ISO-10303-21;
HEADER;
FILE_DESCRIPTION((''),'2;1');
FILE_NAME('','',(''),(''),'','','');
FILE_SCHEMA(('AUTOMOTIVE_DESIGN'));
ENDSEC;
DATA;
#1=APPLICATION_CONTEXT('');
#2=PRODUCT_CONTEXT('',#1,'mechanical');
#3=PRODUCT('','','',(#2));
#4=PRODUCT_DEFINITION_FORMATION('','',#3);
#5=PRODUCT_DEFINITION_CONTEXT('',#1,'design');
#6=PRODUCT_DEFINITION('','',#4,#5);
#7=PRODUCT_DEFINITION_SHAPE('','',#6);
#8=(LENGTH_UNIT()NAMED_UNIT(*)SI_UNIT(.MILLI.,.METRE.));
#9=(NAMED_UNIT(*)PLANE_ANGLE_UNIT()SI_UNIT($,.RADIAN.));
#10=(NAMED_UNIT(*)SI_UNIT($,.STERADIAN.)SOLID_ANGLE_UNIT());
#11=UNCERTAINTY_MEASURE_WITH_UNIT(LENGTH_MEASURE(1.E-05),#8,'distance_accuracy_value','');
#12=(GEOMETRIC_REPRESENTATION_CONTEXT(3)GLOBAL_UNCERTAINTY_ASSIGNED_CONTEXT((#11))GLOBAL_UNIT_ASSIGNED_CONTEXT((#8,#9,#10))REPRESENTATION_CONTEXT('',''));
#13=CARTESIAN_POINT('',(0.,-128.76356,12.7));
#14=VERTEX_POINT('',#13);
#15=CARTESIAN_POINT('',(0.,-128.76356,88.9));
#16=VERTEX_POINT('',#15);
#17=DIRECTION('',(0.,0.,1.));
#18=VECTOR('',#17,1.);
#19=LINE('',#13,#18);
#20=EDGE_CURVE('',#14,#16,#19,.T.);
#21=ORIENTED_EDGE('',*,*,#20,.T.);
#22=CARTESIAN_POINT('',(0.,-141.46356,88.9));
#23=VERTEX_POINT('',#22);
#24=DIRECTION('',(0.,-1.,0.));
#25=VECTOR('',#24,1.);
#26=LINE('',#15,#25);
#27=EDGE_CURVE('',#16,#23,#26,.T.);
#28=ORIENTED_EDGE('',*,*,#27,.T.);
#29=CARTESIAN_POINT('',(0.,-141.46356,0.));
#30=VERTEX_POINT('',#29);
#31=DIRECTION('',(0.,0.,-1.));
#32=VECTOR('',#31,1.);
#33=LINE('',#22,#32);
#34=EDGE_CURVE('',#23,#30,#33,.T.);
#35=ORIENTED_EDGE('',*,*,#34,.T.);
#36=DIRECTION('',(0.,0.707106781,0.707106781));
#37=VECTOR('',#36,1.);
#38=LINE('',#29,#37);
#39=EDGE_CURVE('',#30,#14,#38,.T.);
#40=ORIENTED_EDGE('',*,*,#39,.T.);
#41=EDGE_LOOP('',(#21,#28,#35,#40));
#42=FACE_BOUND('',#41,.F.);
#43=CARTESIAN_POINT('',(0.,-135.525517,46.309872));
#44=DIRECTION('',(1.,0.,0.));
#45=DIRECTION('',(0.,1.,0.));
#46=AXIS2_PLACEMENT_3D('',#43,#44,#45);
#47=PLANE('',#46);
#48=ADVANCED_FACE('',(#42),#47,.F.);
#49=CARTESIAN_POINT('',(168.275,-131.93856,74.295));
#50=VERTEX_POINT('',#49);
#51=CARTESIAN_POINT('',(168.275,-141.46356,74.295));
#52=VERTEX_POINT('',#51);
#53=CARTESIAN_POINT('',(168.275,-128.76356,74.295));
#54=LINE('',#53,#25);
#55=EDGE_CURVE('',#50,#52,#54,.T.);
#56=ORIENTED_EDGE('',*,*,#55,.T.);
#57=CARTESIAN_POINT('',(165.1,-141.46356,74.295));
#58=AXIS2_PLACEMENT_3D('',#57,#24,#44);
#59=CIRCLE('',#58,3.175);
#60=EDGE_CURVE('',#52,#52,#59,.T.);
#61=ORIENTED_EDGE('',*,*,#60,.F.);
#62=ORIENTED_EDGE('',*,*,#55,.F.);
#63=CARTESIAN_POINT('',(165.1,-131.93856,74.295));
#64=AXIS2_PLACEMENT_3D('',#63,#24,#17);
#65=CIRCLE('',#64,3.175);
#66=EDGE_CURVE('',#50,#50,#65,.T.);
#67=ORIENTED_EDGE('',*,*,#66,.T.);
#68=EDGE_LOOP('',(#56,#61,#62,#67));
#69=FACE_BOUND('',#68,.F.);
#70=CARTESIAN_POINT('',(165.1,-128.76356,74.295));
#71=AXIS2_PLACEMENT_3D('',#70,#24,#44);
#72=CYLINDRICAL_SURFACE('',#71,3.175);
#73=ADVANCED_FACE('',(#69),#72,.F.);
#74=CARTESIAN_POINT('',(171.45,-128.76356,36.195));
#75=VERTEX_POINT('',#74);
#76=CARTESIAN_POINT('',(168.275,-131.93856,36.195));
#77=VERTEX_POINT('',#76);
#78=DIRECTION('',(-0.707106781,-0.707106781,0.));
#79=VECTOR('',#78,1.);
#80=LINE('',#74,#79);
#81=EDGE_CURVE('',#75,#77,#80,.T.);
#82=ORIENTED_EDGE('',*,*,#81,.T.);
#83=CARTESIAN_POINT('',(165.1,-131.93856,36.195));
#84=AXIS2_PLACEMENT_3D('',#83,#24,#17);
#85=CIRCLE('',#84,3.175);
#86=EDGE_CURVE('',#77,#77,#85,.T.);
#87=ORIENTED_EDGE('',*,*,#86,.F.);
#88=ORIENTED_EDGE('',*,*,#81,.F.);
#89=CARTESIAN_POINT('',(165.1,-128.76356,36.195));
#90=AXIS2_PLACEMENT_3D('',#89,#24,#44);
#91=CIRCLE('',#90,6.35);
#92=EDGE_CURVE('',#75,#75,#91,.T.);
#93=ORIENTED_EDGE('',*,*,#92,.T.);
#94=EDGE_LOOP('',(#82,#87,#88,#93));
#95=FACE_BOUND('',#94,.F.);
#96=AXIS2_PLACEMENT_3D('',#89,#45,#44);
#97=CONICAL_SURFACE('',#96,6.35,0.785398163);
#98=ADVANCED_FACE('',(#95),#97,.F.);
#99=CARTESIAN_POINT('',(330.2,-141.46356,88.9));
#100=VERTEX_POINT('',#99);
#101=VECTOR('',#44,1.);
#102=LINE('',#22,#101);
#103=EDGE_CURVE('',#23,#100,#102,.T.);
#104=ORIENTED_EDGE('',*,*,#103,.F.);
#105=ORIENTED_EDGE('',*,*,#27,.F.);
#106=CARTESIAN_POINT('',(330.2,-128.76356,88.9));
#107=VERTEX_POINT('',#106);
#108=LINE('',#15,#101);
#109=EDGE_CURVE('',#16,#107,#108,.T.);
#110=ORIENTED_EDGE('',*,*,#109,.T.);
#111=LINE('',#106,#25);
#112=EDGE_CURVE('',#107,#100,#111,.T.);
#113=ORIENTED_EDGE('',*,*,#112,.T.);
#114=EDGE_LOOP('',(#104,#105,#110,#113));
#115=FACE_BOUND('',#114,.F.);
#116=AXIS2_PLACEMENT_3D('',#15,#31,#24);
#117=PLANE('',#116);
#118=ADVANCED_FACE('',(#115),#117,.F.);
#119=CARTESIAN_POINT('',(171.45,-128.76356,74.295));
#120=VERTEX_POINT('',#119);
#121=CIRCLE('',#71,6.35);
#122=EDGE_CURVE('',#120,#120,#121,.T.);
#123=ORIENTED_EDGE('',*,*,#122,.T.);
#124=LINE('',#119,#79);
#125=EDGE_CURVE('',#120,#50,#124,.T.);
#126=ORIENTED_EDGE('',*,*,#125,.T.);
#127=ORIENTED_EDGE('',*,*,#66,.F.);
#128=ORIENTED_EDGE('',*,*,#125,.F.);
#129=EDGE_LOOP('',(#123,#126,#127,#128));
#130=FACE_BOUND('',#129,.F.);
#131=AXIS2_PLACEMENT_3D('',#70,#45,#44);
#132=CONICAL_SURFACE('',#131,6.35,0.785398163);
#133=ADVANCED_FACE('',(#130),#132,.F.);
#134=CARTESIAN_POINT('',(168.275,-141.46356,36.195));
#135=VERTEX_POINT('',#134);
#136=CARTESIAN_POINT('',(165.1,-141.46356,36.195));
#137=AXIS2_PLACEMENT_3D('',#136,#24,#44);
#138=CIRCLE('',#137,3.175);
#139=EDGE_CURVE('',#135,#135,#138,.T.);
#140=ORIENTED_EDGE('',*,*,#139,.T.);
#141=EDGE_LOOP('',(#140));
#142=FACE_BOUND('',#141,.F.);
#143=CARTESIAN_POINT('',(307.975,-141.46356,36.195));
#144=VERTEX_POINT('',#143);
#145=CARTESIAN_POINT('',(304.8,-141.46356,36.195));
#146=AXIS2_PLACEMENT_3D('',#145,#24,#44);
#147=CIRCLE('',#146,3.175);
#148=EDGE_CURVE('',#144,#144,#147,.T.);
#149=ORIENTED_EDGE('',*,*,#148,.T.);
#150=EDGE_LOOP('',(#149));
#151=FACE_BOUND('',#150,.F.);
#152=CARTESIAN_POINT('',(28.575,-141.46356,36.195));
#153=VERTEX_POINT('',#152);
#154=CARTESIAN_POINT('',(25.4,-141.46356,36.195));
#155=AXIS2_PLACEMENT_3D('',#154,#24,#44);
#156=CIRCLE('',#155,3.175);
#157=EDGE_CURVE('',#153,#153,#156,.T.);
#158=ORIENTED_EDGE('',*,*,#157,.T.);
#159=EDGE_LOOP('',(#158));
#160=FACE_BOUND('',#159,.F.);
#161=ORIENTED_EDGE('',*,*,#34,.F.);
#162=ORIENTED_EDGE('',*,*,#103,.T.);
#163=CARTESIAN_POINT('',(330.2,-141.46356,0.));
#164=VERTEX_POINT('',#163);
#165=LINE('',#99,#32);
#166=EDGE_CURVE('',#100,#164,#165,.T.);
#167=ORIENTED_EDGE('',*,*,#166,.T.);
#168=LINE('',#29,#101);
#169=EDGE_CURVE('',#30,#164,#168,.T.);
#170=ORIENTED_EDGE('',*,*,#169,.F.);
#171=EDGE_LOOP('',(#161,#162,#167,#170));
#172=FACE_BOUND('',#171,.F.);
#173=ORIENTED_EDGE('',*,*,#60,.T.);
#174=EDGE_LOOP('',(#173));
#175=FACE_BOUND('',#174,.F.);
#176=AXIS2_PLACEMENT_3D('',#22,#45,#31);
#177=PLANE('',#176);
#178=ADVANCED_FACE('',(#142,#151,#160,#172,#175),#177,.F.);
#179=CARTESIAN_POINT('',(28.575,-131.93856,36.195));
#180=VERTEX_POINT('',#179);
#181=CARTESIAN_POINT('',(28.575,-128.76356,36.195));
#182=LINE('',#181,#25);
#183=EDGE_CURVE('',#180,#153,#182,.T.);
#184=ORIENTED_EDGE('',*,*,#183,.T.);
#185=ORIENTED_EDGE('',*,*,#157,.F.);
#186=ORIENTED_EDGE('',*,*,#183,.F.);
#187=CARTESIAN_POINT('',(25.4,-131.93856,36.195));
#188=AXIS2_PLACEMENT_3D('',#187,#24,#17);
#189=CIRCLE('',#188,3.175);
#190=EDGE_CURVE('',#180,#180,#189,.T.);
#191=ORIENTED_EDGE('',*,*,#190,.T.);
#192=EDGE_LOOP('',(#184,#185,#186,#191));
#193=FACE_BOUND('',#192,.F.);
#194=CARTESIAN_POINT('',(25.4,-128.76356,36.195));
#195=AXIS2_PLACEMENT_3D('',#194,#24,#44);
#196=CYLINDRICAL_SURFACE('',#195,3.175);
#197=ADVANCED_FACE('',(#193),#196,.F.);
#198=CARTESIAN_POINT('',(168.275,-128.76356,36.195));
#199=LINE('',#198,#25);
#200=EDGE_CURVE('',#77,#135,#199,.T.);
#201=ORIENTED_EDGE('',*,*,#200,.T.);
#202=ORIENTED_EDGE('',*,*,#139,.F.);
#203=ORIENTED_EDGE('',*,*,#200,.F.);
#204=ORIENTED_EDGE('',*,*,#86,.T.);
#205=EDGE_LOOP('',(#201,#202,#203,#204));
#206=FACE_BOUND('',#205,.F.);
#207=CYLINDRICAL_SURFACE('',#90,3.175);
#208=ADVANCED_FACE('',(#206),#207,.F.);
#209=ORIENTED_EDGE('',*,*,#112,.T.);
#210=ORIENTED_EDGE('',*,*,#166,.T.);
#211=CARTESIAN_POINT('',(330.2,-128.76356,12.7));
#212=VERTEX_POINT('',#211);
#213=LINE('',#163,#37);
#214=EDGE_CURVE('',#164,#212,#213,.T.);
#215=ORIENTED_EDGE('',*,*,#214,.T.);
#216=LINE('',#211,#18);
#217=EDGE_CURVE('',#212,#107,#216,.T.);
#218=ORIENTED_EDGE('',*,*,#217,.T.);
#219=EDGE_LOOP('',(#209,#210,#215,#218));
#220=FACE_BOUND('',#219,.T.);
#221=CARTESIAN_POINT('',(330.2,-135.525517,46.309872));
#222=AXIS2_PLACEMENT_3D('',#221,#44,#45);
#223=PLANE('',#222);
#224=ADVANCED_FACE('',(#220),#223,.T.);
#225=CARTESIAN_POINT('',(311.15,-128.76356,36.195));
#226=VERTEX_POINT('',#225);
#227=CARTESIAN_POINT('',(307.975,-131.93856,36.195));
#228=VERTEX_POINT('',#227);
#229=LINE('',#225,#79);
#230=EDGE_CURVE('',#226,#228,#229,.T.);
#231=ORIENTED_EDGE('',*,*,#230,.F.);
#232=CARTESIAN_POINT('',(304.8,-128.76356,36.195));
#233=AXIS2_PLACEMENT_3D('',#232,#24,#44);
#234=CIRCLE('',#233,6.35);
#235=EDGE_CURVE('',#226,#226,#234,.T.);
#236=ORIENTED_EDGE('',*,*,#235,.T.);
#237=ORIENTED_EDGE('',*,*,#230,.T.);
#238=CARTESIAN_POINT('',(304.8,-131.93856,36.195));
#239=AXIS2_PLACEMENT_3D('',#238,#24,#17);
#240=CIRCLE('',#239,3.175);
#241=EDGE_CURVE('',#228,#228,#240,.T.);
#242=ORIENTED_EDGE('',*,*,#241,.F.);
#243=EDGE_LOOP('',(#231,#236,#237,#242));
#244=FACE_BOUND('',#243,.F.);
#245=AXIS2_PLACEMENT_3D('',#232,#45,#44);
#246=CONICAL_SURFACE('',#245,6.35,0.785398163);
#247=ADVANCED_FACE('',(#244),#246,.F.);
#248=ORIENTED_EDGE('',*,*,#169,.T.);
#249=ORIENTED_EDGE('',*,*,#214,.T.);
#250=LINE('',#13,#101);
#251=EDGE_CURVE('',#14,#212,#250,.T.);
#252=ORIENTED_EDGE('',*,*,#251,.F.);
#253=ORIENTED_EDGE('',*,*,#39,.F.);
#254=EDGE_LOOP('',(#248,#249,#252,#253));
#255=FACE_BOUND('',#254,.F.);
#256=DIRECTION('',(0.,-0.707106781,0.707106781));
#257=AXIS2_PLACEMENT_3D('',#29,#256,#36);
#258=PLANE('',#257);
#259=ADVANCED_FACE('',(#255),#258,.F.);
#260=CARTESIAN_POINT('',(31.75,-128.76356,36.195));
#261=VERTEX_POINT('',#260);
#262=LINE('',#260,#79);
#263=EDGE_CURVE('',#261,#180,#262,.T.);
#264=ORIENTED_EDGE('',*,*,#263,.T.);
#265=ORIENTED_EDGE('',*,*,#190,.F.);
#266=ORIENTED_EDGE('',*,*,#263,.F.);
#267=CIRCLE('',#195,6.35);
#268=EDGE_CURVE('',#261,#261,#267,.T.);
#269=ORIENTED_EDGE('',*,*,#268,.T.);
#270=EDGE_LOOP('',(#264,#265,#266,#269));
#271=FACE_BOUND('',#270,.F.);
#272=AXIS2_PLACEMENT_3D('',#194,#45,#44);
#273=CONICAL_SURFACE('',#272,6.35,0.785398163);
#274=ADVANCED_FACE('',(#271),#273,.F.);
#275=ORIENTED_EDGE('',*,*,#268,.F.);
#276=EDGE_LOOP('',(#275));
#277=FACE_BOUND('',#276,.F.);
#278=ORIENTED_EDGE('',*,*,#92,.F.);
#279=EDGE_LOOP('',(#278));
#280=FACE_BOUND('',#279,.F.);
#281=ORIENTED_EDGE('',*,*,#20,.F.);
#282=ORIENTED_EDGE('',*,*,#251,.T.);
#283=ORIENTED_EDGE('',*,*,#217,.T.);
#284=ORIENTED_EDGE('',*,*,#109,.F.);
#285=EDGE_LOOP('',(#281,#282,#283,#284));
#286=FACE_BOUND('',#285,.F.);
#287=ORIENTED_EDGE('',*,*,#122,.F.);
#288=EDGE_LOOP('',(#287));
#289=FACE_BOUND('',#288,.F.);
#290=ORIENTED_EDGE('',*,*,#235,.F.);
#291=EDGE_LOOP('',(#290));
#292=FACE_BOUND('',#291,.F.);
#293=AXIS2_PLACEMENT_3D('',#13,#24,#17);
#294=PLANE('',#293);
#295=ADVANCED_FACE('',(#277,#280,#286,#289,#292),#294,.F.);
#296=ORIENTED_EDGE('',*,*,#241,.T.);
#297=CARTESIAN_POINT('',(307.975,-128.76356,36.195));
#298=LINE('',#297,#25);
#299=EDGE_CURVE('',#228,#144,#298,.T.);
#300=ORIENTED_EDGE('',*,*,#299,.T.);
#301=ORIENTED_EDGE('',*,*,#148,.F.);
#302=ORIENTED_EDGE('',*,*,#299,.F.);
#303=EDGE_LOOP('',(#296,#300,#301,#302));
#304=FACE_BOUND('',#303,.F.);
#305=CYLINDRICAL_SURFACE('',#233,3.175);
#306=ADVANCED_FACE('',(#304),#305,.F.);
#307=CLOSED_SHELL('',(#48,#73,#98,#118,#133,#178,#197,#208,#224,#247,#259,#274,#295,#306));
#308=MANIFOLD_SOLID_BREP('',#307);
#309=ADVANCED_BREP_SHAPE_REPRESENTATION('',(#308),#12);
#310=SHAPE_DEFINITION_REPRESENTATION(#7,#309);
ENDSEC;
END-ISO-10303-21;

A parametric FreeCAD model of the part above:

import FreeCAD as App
import Part
import Sketcher
Q = App.Units.Quantity

doc = App.newDocument("Part")
body = doc.addObject("PartDesign::Body", "Body")

# Sketch on YZ plane
sketch1 = body.newObject("Sketcher::SketchObject", "Sketch")
sketch1.AttachmentSupport = (doc.getObject("YZ_Plane"), [""])
sketch1.MapMode = "FlatFace"
sketch1.addGeometry(Part.LineSegment(App.Vector(-129, 89, 0), App.Vector(-141, 89, 0)), False)
sketch1.addGeometry(Part.LineSegment(App.Vector(-141, 89, 0), App.Vector(-141, 0, 0)), False)
sketch1.addGeometry(Part.LineSegment(App.Vector(-141, 0, 0), App.Vector(-129, 13, 0)), False)
sketch1.addGeometry(Part.LineSegment(App.Vector(-129, 13, 0), App.Vector(-129, 89, 0)), False)
sketch1.addConstraint(Sketcher.Constraint("Coincident", 0, 2, 1, 1))
sketch1.addConstraint(Sketcher.Constraint("Coincident", 1, 2, 2, 1))
sketch1.addConstraint(Sketcher.Constraint("Coincident", 2, 2, 3, 1))
sketch1.addConstraint(Sketcher.Constraint("Coincident", 3, 2, 0, 1))
sketch1.addConstraint(Sketcher.Constraint("Horizontal", 0))
sketch1.addConstraint(Sketcher.Constraint("Vertical", 1))
sketch1.addConstraint(Sketcher.Constraint("Vertical", 3))
sketch1.addConstraint(Sketcher.Constraint("PointOnObject", 1, 2, -1))
sketch1.addConstraint(Sketcher.Constraint("DistanceY", 3, 1, 3, 2, Q("3 in")))
sketch1.addConstraint(Sketcher.Constraint("DistanceX", 0, 2, 0, 1, Q("0.5 in")))
sketch1.addConstraint(Sketcher.Constraint("DistanceY", 1, 2, 1, 1, Q("3.5 in")))
sketch1.addConstraint(Sketcher.Constraint("DistanceX", 0, 2, -1, 1, Q("141.46356 mm")))
pad1 = body.newObject("PartDesign::Pad", "Pad")
pad1.Profile = sketch1
pad1.Length = Q("13 in")

# Sketch on XZ plane
sketch2 = body.newObject("Sketcher::SketchObject", "Sketch001")
sketch2.AttachmentSupport = (doc.getObject("XZ_Plane"), [""])
sketch2.MapMode = "FlatFace"
sketch2.AttachmentOffset = App.Placement(App.Vector(0, 0, 128.76356), App.Rotation())
sketch2.addGeometry(Part.Circle(App.Vector(165.1, 36.2, 0), App.Vector(0, 0, 1), 3.2), False)
sketch2.addGeometry(Part.Circle(App.Vector(165.1, 74.3, 0), App.Vector(0, 0, 1), 3.2), False)
sketch2.addGeometry(Part.Circle(App.Vector(304.8, 36.2, 0), App.Vector(0, 0, 1), 3.2), False)
sketch2.addGeometry(Part.Circle(App.Vector(25.4, 36.2, 0), App.Vector(0, 0, 1), 3.2), False)
sketch2.addGeometry(Part.Circle(App.Vector(-38.1, 36.2, 0), App.Vector(0, 0, 1), 3.2), False)
sketch2.addGeometry(Part.Circle(App.Vector(431.8, 36.2, 0), App.Vector(0, 0, 1), 3.2), False)
sketch2.addGeometry(Part.Circle(App.Vector(368.3, 36.2, 0), App.Vector(0, 0, 1), 3.2), False)
sketch2.addGeometry(Part.Circle(App.Vector(-38.1, 36.2, 0), App.Vector(0, 0, 1), 3.2), False)
sketch2.addConstraint(Sketcher.Constraint("Coincident", 7, 3, 4, 3))
sketch2.addConstraint(Sketcher.Constraint("Equal", 0, 1))
sketch2.addConstraint(Sketcher.Constraint("Equal", 1, 2))
sketch2.addConstraint(Sketcher.Constraint("Equal", 2, 3))
sketch2.addConstraint(Sketcher.Constraint("Equal", 3, 4))
sketch2.addConstraint(Sketcher.Constraint("Equal", 4, 5))
sketch2.addConstraint(Sketcher.Constraint("Equal", 5, 6))
sketch2.addConstraint(Sketcher.Constraint("Equal", 6, 7))
sketch2.addConstraint(Sketcher.Constraint("Horizontal", 0, 3, 2, 3))
sketch2.addConstraint(Sketcher.Constraint("Horizontal", 2, 3, 3, 3))
sketch2.addConstraint(Sketcher.Constraint("Horizontal", 3, 3, 4, 3))
sketch2.addConstraint(Sketcher.Constraint("Horizontal", 4, 3, 5, 3))
sketch2.addConstraint(Sketcher.Constraint("Horizontal", 5, 3, 6, 3))
sketch2.addConstraint(Sketcher.Constraint("Vertical", 0, 3, 1, 3))
sketch2.addConstraint(Sketcher.Constraint("Diameter", 0, Q("0.25 in")))
sketch2.addConstraint(Sketcher.Constraint("DistanceX", -1, 1, 2, 3, Q("12 in")))
sketch2.addConstraint(Sketcher.Constraint("DistanceX", -1, 1, 3, 3, Q("1 in")))
sketch2.addConstraint(Sketcher.Constraint("DistanceX", -1, 1, 5, 3, Q("17 in")))
sketch2.addConstraint(Sketcher.Constraint("DistanceX", 4, 3, 0, 3, Q("8 in")))
sketch2.addConstraint(Sketcher.Constraint("DistanceX", 0, 3, 6, 3, Q("8 in")))
sketch2.addConstraint(Sketcher.Constraint("DistanceX", -1, 1, 0, 3, Q("6.5 in")))
sketch2.addConstraint(Sketcher.Constraint("DistanceY", 0, 3, 1, 3, Q("1.5 in")))
sketch2.addConstraint(Sketcher.Constraint("DistanceY", -1, 1, 0, 3, Q("1.425 in")))
doc.recompute()
hole = body.newObject("PartDesign::Hole", "Hole")
hole.Profile = sketch2
hole.ThreadType = "None"
hole.Diameter = Q("0.25 in")
hole.DepthType = "ThroughAll"
hole.HoleCutType = "Countersink"
hole.HoleCutDiameter = Q("0.5 in")
hole.HoleCutCountersinkAngle = 90
hole.Reversed = True

doc.recompute()
